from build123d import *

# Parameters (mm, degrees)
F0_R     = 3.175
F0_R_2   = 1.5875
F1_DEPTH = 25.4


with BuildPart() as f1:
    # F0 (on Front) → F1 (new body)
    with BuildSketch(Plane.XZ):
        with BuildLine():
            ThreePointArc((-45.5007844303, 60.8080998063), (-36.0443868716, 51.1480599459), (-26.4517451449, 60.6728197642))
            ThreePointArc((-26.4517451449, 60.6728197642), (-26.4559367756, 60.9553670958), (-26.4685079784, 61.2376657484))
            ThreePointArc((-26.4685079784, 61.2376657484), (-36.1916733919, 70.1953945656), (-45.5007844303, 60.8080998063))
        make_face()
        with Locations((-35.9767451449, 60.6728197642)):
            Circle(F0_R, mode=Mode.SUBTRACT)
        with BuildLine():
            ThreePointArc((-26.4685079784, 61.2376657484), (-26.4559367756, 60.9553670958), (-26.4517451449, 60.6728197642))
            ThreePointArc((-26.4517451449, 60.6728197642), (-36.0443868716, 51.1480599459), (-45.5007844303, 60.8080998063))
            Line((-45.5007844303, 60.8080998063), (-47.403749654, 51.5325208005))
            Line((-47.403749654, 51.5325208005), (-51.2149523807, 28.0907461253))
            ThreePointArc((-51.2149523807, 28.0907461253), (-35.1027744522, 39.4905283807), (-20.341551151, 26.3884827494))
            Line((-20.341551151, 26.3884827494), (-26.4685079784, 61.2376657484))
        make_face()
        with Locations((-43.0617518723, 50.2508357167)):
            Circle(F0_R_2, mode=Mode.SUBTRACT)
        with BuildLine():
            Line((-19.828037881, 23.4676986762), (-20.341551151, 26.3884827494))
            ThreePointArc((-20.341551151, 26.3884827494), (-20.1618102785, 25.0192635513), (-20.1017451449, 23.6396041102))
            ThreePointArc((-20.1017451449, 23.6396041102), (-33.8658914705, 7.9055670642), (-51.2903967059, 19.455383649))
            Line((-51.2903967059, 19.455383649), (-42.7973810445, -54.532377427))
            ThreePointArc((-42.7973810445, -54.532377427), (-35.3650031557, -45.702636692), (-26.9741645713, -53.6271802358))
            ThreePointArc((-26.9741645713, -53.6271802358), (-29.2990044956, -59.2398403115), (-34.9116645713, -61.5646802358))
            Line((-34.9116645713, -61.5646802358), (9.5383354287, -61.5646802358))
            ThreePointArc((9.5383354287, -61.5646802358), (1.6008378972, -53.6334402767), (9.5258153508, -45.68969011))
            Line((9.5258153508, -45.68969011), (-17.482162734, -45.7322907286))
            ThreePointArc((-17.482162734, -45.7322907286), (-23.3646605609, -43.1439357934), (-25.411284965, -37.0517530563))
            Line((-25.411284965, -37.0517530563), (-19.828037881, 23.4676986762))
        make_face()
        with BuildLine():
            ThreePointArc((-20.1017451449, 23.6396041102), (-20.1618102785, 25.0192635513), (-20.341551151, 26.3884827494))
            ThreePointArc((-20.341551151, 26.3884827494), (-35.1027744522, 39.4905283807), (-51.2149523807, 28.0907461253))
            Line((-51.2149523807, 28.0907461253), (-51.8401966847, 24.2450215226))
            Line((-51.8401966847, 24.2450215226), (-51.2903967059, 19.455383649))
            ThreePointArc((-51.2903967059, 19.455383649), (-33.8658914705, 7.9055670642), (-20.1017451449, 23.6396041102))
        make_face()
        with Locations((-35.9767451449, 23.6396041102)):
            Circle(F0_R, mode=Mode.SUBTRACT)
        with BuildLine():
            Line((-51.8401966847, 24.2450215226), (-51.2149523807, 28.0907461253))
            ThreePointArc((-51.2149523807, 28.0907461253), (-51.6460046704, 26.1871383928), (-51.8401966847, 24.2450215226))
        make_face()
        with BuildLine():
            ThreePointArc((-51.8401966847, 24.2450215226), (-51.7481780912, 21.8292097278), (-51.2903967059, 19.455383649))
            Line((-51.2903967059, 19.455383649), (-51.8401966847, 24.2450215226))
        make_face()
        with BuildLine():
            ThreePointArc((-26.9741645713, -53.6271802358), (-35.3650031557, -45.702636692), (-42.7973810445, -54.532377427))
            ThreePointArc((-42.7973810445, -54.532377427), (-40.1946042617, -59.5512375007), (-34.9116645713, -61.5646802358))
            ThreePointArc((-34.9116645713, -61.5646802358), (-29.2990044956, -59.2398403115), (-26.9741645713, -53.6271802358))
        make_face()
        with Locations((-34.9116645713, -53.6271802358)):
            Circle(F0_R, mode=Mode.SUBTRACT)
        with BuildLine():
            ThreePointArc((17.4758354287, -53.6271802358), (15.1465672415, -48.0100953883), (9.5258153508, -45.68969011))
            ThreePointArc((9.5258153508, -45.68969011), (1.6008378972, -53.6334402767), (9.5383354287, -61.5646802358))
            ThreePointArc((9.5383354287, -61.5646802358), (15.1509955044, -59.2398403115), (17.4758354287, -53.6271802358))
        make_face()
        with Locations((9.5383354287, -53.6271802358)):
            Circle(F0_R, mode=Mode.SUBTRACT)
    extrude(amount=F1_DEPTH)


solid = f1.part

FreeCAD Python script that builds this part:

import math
import FreeCAD as App
import Part
import Sketcher

V = App.Vector
Q = App.Units.Quantity

doc = App.newDocument("Part")
body = doc.addObject("PartDesign::Body", "Body")

sketch1 = body.newObject("Sketcher::SketchObject", "Sketch")
sketch1.AttachmentSupport = (doc.getObject("XZ_Plane"), [""])
sketch1.MapMode = "FlatFace"
sketch1.addGeometry([
    Part.ArcOfCircle(Part.Circle(V(-35.976745, 60.67282, 0), V(0, 0, 1), 9.525), math.radians(3.399715), math.radians(179.186222)),
    Part.LineSegment(V(-45.500784, 60.8081, 0), V(-47.40375, 51.532521, 0)),
    Part.LineSegment(V(-47.40375, 51.532521, 0), V(-51.214952, 28.090746, 0)),
    Part.ArcOfCircle(Part.Circle(V(-35.976745, 23.639604, 0), V(0, 0, 1), 15.875), math.radians(163.716703), math.radians(177.814408)),
    Part.ArcOfCircle(Part.Circle(V(-35.976745, 23.639604, 0), V(0, 0, 1), 15.875), math.radians(177.814408), math.radians(195.282174)),
    Part.LineSegment(V(-51.290397, 19.455384, 0), V(-42.797381, -54.532377, 0)),
    Part.ArcOfCircle(Part.Circle(V(-34.911665, -53.62718, 0), V(0, 0, 1), 7.9375), math.radians(-173.451709), math.radians(-90)),
    Part.LineSegment(V(-34.911665, -61.56468, 0), V(9.538335, -61.56468, 0)),
    Part.ArcOfCircle(Part.Circle(V(9.538335, -53.62718, 0), V(0, 0, 1), 7.9375), math.radians(-90), math.radians(0)),
    Part.ArcOfCircle(Part.Circle(V(9.538335, -53.62718, 0), V(0, 0, 1), 7.9375), math.radians(0), math.radians(90.090375)),
    Part.LineSegment(V(9.525815, -45.68969, 0), V(-17.482163, -45.732291, 0)),
    Part.ArcOfCircle(Part.Circle(V(-17.494703, -37.782101, 0), V(0, 0, 1), 7.9502), math.radians(174.729074), math.radians(270.090375)),
    Part.LineSegment(V(-25.411285, -37.051753, 0), V(-19.828038, 23.467699, 0)),
    Part.LineSegment(V(-19.828038, 23.467699, 0), V(-26.468508, 61.237666, 0)),
    Part.Circle(V(-34.911665, -53.62718, 0), V(0, 0, 1), 3.175),
    Part.Circle(V(9.538335, -53.62718, 0), V(0, 0, 1), 3.175),
    Part.Circle(V(-35.976745, 23.639604, 0), V(0, 0, 1), 3.175),
    Part.Circle(V(-43.061752, 50.250836, 0), V(0, 0, 1), 1.5875),
    Part.Circle(V(-35.976745, 60.67282, 0), V(0, 0, 1), 3.175),
], False)
sketch1.addConstraint([
    Sketcher.Constraint("Coincident", 0, 2, 1, 1),
    Sketcher.Constraint("Coincident", 1, 2, 2, 1),
    Sketcher.Constraint("Coincident", 2, 2, 3, 1),
    Sketcher.Constraint("Coincident", 3, 2, 4, 1),
    Sketcher.Constraint("Coincident", 4, 2, 5, 1),
    Sketcher.Constraint("Coincident", 5, 2, 6, 1),
    Sketcher.Constraint("Coincident", 6, 2, 7, 1),
    Sketcher.Constraint("Coincident", 7, 2, 8, 1),
    Sketcher.Constraint("Coincident", 8, 2, 9, 1),
    Sketcher.Constraint("Coincident", 9, 2, 10, 1),
    Sketcher.Constraint("Coincident", 10, 2, 11, 2),
    Sketcher.Constraint("Coincident", 11, 1, 12, 1),
    Sketcher.Constraint("Coincident", 12, 2, 13, 1),
    Sketcher.Constraint("Coincident", 13, 2, 0, 1),
    Sketcher.Constraint("Horizontal", 7),
    Sketcher.Constraint("Coincident", 4, 3, 3, 3),
    Sketcher.Constraint("Coincident", 9, 3, 8, 3),
    Sketcher.Constraint("Coincident", 14, 3, 6, 3),
    Sketcher.Constraint("Coincident", 15, 3, 8, 3),
    Sketcher.Constraint("Coincident", 16, 3, 3, 3),
    Sketcher.Constraint("Coincident", 18, 3, 0, 3),
    Sketcher.Constraint("Diameter", 14, Q("0.25 in")),
    Sketcher.Constraint("Diameter", 15, Q("0.25 in")),
    Sketcher.Constraint("Diameter", 16, Q("0.25 in")),
    Sketcher.Constraint("Diameter", 18, Q("0.25 in")),
    Sketcher.Constraint("Diameter", 17, Q("0.125 in")),
    Sketcher.Constraint("Radius", 0, Q("0.375 in")),
    Sketcher.Constraint("Radius", 3, Q("0.625 in")),
    Sketcher.Constraint("Radius", 6, Q("0.3125 in")),
    Sketcher.Constraint("Radius", 8, Q("0.3125 in")),
    Sketcher.Constraint("Radius", 11, Q("0.313 in")),
    Sketcher.Constraint("DistanceX", 7, 1, 7, 2, Q("1.75 in")),
    Sketcher.Constraint("DistanceY", 6, 3, 0, 3, Q("4.5 in")),
    Sketcher.Constraint("DistanceX", 6, 3, 8, 3, Q("1.75 in")),
    Sketcher.Constraint("DistanceX", 6, 2, 8, 3, Q("1.75 in")),
    Sketcher.Constraint("DistanceY", 7, 2, 8, 2, Q("0.3125 in")),
    Sketcher.Constraint("DistanceY", 11, 3, -1, 1, 37.782101),
    Sketcher.Constraint("DistanceY", -1, 1, 0, 2, 60.8081),
    Sketcher.Constraint("DistanceY", -1, 1, 12, 2, 23.467699),
    Sketcher.Constraint("DistanceY", 1, 2, 0, 3, 9.140299),
    Sketcher.Constraint("DistanceX", 2, 2, 17, 3, 8.153201),
    Sketcher.Constraint("DistanceX", 3, 2, 4, 2, 0.5498),
    Sketcher.Constraint("DistanceX", 6, 3, 10, 2, 17.429502),
    Sketcher.Constraint("Distance", 1, 9.468772),
    Sketcher.Constraint("Distance", 2, 23.74957),
    Sketcher.Constraint("Distance", 5, 74.47362),
    Sketcher.Constraint("Distance", 10, 27.008012),
    Sketcher.Constraint("Distance", 12, 60.776448),
    Sketcher.Constraint("DistanceY", -1, 1, 0, 3, 60.67282),
    Sketcher.Constraint("DistanceX", 17, 3, -1, 1, 43.061752),
    Sketcher.Constraint("DistanceX", 1, 2, -1, 1, 47.40375),
    Sketcher.Constraint("DistanceY", -1, 1, 3, 2, 24.245022),
    Sketcher.Constraint("DistanceX", 5, 2, -1, 1, 42.797381),
    Sketcher.Constraint("DistanceX", 3, 3, 6, 3, 1.065081),
    Sketcher.Constraint("DistanceX", 6, 3, 11, 3, 17.416962),
    Sketcher.Constraint("DistanceY", 4, 3, 17, 3, 26.611232),
    Sketcher.Constraint("DistanceX", 6, 3, 11, 1, 9.50038),
    Sketcher.Constraint("DistanceY", 17, 3, 13, 2, 10.98683),
])
pad1 = body.newObject("PartDesign::Pad", "Pad")
pad1.Profile = sketch1
pad1.Length = Q("1 in")

doc.recompute()
